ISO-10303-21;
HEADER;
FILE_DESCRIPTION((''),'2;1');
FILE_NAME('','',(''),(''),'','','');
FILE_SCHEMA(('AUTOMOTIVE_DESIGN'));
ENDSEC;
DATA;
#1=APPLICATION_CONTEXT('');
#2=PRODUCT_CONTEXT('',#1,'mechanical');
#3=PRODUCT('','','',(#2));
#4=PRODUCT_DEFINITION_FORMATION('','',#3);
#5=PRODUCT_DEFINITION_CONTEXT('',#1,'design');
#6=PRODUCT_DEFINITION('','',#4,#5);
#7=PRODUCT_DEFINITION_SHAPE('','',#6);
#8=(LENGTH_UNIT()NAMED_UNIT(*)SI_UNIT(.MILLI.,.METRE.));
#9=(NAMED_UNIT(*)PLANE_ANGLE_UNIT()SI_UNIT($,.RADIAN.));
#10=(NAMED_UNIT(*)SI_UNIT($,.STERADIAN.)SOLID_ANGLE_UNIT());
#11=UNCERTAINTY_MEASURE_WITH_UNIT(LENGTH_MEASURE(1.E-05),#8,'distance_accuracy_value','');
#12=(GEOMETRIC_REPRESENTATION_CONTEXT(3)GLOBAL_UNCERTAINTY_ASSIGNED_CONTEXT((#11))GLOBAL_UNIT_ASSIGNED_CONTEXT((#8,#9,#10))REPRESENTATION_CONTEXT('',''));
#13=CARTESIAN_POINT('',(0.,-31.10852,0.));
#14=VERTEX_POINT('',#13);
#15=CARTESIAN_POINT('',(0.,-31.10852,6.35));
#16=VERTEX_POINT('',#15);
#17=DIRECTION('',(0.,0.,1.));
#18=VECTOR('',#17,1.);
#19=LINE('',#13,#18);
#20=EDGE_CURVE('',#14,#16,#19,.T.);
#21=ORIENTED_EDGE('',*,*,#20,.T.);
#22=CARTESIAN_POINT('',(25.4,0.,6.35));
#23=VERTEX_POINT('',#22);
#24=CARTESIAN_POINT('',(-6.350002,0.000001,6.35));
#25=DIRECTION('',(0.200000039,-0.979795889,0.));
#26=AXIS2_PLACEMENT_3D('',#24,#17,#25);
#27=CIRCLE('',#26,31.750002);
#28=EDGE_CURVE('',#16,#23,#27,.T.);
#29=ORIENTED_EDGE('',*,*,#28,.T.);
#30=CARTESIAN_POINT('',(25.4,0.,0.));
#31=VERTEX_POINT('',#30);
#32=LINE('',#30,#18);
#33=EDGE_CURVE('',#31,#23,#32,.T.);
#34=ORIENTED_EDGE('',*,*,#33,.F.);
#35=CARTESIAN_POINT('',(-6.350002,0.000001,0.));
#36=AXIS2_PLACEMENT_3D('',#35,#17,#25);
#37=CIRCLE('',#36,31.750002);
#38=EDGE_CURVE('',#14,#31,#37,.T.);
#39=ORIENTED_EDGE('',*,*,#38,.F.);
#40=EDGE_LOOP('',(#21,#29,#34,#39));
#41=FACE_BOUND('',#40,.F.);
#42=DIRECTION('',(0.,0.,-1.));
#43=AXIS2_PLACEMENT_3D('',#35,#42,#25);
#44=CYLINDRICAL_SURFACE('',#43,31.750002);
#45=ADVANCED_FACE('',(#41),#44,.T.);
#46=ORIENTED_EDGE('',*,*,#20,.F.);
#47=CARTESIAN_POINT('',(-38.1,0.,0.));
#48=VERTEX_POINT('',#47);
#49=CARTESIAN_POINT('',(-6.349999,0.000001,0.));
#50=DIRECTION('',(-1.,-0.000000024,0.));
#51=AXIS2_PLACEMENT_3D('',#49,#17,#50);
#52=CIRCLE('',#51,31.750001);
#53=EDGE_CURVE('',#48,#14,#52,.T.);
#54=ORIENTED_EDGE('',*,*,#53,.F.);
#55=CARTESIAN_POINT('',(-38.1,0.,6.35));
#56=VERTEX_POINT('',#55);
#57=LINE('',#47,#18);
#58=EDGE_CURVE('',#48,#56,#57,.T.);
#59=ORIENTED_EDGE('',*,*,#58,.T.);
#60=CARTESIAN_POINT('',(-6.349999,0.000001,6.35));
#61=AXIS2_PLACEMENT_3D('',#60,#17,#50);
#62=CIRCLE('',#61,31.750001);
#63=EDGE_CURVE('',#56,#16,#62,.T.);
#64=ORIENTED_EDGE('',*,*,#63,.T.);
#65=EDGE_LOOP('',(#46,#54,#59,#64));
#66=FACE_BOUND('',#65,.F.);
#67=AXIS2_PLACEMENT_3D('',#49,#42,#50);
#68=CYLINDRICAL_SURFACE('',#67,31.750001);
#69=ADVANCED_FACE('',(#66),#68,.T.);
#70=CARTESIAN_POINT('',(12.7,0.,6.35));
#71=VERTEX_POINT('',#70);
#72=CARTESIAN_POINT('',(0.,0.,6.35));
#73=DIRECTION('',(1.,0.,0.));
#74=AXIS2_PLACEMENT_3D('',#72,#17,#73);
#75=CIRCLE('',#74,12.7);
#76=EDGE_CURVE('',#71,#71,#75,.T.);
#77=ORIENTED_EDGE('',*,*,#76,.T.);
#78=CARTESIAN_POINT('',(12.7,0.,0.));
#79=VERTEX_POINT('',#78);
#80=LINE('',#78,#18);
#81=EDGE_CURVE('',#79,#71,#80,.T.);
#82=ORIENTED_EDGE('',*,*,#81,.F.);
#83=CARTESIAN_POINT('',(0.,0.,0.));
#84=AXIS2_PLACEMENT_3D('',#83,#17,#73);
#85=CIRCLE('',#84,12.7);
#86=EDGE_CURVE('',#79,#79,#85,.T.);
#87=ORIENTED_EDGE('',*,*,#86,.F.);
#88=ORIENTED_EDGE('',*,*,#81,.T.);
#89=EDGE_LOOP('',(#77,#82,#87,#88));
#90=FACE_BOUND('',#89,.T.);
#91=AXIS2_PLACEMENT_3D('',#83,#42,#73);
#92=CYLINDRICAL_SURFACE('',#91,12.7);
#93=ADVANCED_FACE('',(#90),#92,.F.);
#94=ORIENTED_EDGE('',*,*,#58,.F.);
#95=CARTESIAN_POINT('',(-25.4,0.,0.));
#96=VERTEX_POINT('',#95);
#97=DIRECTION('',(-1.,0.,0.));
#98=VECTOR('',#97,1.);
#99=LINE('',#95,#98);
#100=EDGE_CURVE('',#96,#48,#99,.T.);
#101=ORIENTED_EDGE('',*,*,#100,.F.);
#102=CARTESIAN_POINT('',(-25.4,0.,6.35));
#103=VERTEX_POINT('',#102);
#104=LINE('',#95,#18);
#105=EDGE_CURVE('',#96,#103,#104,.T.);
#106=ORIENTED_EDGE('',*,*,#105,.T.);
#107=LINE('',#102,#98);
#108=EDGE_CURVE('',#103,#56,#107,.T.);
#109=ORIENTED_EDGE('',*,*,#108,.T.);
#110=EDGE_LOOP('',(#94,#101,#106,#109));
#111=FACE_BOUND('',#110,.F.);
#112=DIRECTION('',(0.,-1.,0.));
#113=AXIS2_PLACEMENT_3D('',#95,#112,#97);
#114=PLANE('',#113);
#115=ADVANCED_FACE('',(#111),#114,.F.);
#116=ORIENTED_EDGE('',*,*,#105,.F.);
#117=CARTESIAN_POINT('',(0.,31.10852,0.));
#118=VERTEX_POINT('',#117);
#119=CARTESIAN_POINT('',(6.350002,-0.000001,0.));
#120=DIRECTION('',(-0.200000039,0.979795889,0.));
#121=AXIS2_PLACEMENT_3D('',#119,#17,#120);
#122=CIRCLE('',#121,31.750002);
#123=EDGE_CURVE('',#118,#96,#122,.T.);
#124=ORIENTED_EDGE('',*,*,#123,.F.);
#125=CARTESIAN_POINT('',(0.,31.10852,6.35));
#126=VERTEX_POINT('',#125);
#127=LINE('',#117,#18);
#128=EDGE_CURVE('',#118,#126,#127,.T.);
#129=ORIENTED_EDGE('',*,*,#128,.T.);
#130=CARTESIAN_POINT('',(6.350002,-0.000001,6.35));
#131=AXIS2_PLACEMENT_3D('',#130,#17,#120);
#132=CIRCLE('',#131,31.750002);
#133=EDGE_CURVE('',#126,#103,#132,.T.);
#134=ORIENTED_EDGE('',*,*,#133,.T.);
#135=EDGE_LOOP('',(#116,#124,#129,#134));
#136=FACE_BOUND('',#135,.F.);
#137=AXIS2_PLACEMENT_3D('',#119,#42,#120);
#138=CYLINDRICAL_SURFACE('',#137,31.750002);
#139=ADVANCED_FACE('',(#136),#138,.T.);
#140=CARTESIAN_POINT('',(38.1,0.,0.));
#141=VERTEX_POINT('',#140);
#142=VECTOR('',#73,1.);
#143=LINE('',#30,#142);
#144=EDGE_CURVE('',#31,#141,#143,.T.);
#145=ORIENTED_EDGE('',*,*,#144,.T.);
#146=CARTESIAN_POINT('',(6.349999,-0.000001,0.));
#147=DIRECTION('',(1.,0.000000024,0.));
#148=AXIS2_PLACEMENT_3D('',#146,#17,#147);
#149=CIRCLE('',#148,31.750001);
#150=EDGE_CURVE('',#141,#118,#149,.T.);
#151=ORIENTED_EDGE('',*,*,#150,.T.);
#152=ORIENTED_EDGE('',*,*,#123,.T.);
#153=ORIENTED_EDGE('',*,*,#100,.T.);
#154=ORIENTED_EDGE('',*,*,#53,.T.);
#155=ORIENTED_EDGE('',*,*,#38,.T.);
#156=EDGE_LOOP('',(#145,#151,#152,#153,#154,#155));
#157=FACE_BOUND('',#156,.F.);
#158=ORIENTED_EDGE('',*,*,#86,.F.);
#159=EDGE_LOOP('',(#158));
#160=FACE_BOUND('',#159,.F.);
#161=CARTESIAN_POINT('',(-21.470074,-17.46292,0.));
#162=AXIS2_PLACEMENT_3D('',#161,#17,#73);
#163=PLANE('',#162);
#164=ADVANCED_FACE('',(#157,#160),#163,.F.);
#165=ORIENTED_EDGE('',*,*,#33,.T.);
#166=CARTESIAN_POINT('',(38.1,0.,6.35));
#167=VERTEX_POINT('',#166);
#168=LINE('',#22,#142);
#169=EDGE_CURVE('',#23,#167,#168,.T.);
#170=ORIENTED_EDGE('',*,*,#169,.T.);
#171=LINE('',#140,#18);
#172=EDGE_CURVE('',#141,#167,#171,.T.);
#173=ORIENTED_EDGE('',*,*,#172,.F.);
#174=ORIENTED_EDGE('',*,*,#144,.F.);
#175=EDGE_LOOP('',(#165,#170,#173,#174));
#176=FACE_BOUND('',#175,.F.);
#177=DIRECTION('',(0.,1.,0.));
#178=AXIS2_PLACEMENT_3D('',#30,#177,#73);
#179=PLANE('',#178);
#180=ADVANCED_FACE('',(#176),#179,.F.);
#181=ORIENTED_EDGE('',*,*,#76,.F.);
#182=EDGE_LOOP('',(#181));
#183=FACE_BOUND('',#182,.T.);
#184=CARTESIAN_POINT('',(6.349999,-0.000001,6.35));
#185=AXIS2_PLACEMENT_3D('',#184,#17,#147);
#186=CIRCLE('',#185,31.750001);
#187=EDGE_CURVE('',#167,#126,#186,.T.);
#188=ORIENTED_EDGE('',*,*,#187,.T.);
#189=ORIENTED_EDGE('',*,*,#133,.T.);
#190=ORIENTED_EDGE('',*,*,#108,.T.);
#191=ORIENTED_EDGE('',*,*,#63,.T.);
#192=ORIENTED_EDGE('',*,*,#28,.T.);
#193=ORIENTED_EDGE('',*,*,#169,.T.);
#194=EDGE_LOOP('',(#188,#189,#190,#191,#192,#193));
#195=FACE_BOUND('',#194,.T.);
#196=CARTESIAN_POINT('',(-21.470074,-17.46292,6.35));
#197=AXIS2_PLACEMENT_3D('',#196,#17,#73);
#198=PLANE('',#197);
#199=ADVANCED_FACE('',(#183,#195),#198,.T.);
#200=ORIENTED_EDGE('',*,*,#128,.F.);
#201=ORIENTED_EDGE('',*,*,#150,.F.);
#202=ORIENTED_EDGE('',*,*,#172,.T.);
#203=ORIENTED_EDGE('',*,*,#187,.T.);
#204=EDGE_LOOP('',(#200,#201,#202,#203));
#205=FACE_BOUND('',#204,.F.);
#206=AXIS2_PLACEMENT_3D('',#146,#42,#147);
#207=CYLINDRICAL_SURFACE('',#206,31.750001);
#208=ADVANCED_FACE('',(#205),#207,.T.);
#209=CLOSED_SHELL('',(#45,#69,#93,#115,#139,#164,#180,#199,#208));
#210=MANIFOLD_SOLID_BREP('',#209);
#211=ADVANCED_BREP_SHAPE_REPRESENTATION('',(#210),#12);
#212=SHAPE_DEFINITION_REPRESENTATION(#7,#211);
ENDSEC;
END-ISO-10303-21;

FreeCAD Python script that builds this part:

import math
import FreeCAD as App
import Part
import Sketcher
Q = App.Units.Quantity

doc = App.newDocument("Part")
body = doc.addObject("PartDesign::Body", "Body")

# Sketch on XY plane
sketch1 = body.newObject("Sketcher::SketchObject", "Sketch")
sketch1.AttachmentSupport = (doc.getObject("XY_Plane"), [""])
sketch1.MapMode = "FlatFace"
sketch1.addGeometry([
    Part.LineSegment(App.Vector(-25, 0, 0), App.Vector(-38, 0, 0)),  # 0
    Part.ArcOfCircle(Part.Circle(App.Vector(-6, 0, 0), App.Vector(0, 0, 1), 32), math.radians(-180), math.radians(-78)),  # 1
    Part.ArcOfCircle(Part.Circle(App.Vector(-6, 0, 0), App.Vector(0, 0, 1), 32), math.radians(-78), math.radians(0)),  # 2
    Part.LineSegment(App.Vector(25, 0, 0), App.Vector(38, 0, 0)),  # 3
    Part.ArcOfCircle(Part.Circle(App.Vector(6, 0, 0), App.Vector(0, 0, 1), 32), math.radians(0), math.radians(102)),  # 4
    Part.ArcOfCircle(Part.Circle(App.Vector(6, 0, 0), App.Vector(0, 0, 1), 32), math.radians(102), math.radians(180)),  # 5
    Part.Circle(App.Vector(0, 0, 0), App.Vector(0, 0, 1), 13),  # 6
], False)
sketch1.addConstraint([
    Sketcher.Constraint("Coincident", 0, 2, 1, 1),
    Sketcher.Constraint("Tangent", 1, 2, 2, 1),
    Sketcher.Constraint("Coincident", 2, 2, 3, 1),
    Sketcher.Constraint("Coincident", 3, 2, 4, 1),
    Sketcher.Constraint("Tangent", 4, 2, 5, 1),
    Sketcher.Constraint("Coincident", 5, 2, 0, 1),
    Sketcher.Constraint("Horizontal", 0),
    Sketcher.Constraint("Horizontal", 3),
    Sketcher.Constraint("Coincident", 6, 3, -1, 1),
    Sketcher.Constraint("Equal", 1, 2),
    Sketcher.Constraint("Equal", 2, 4),
    Sketcher.Constraint("Equal", 4, 5),
    Sketcher.Constraint("Symmetric", 1, 3, 4, 3, -1, 1),
    Sketcher.Constraint("Symmetric", 1, 2, 4, 2, -1),
    Sketcher.Constraint("PointOnObject", 1, 3, -1),
    Sketcher.Constraint("PointOnObject", 0, 2, -1),
    Sketcher.Constraint("PointOnObject", 2, 2, -1),
    Sketcher.Constraint("Diameter", 6, Q("1 in")),
    Sketcher.Constraint("Radius", 1, Q("1.25 in")),
    Sketcher.Constraint("DistanceX", 0, 2, 0, 1, Q("0.5 in")),
])
pad1 = body.newObject("PartDesign::Pad", "Pad")
pad1.Profile = sketch1
pad1.Length = Q("0.25 in")

doc.recompute()
